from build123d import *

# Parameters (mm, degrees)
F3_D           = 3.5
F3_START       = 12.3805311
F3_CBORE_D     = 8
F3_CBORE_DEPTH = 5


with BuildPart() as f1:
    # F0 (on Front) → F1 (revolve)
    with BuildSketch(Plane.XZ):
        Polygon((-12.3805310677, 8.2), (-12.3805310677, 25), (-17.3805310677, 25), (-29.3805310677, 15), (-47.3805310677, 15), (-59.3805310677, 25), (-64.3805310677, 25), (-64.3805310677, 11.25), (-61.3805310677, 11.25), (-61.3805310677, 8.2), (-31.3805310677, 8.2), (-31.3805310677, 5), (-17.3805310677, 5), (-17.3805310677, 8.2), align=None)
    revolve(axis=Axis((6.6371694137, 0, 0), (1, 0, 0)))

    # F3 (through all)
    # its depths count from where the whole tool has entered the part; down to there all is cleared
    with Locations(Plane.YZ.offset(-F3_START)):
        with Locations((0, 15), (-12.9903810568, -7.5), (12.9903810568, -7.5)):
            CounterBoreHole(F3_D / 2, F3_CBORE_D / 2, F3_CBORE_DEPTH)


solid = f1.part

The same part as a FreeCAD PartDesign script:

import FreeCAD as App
import Part
import Sketcher
from FreeCAD import Vector


def add_polygon(sketch, points):
    """Adds a closed chain of lines whose ends are joined by coincident constraints."""
    first, n = sketch.GeometryCount, len(points)
    for a, b in zip(points, points[1:] + points[:1]):
        sketch.addGeometry(Part.LineSegment(App.Vector(*a, 0), App.Vector(*b, 0)), False)
    for i in range(n):
        sketch.addConstraint(Sketcher.Constraint("Coincident", first + i, 2, first + (i + 1) % n, 1))

doc = App.newDocument("Part")
params = doc.addObject("Spreadsheet::Sheet", "Params")
for row, (alias, value) in enumerate([
    ("sketch1_width", "5 mm"),
    ("sketch1_width2", "18 mm"),
    ("sketch1_width3", "3 mm"),
    ("sketch1_width4", "30 mm"),
    ("sketch1_width5", "14 mm"),
    ("revolution_angle", "360 deg"),
    ("sketch2_diameter", "3.5 mm"),
    ("hole_diameter", "3.5 mm"),
    ("hole_cbore_diameter", "8 mm"),
    ("hole_cbore_depth", "5 mm"),
], start=1):
    params.set(f"A{row}", alias)
    params.set(f"B{row}", "=" + value)
    params.setAlias(f"B{row}", alias)

body = doc.addObject("PartDesign::Body", "Body")

# Sketch on XZ plane
sketch1 = body.newObject("Sketcher::SketchObject", "Sketch")
sketch1.AttachmentSupport = (doc.getObject("XZ_Plane"), [""])
sketch1.MapMode = "FlatFace"
add_polygon(sketch1, [(-12.4, 8.2), (-12.4, 25), (-17.4, 25), (-29.4, 15), (-47.4, 15), (-59.4, 25), (-64.4, 25), (-64.4, 11.2), (-61.4, 11.2), (-61.4, 8.2), (-31.4, 8.2), (-31.4, 5), (-17.4, 5), (-17.4, 8.2)])  # lines 0-13
sketch1.addConstraint([
    Sketcher.Constraint("Vertical", 0),
    Sketcher.Constraint("Horizontal", 1),
    Sketcher.Constraint("Horizontal", 3),
    Sketcher.Constraint("Horizontal", 5),
    Sketcher.Constraint("Vertical", 6),
    Sketcher.Constraint("Horizontal", 7),
    Sketcher.Constraint("Vertical", 8),
    Sketcher.Constraint("Horizontal", 9),
    Sketcher.Constraint("Vertical", 10),
    Sketcher.Constraint("Horizontal", 11),
    Sketcher.Constraint("Vertical", 12),
    Sketcher.Constraint("Horizontal", 13),
    Sketcher.Constraint("Horizontal", 1, 2, 4, 2),
    Sketcher.Constraint("Horizontal", 9, 2, 12, 2),
    Sketcher.Constraint("Vertical", 1, 2, 11, 2),
    Sketcher.Constraint("Equal", 1, 5),
    Sketcher.Constraint("Equal", 2, 4),
    Sketcher.Constraint("DistanceX", 1, 2, 1, 1, 5.0),
    Sketcher.Constraint("DistanceX", 3, 2, 3, 1, 18.0),
    Sketcher.Constraint("DistanceX", 7, 1, 7, 2, 3.0),
    Sketcher.Constraint("DistanceX", 9, 1, 9, 2, 30.0),
    Sketcher.Constraint("DistanceX", 11, 1, 11, 2, 14.0),
    Sketcher.Constraint("DistanceY", 0, 1, 0, 2, 16.8),
    Sketcher.Constraint("DistanceY", 10, 2, 10, 1, 3.2),
    Sketcher.Constraint("DistanceY", -1, 1, 0, 2, 25.0),
    Sketcher.Constraint("DistanceY", -1, 1, 2, 2, 15.0),
    Sketcher.Constraint("DistanceY", 6, 2, 6, 1, 13.75),
    Sketcher.Constraint("DistanceX", 0, 2, -1, 1, 12.380531),
])
sketch1.setExpression("Constraints[31]", "Params.sketch1_width")
sketch1.setExpression("Constraints[32]", "Params.sketch1_width2")
sketch1.setExpression("Constraints[33]", "Params.sketch1_width3")
sketch1.setExpression("Constraints[34]", "Params.sketch1_width4")
sketch1.setExpression("Constraints[35]", "Params.sketch1_width5")
revolution = body.newObject("PartDesign::Revolution", "Revolution")
revolution.Profile = sketch1
revolution.ReferenceAxis = (sketch1, ["H_Axis"])
revolution.setExpression("Angle", "Params.revolution_angle")

# Sketch on YZ plane
sketch2 = body.newObject("Sketcher::SketchObject", "Sketch001")
sketch2.AttachmentSupport = (doc.getObject("YZ_Plane"), [""])
sketch2.MapMode = "FlatFace"
sketch2.AttachmentOffset = App.Placement(Vector(0, 0, -12.380531), App.Rotation())
sketch2.addGeometry([
    Part.Circle(Vector(0, 15, 0), Vector(0, 0, 1), 1.8),
    Part.Circle(Vector(-13, -7.5, 0), Vector(0, 0, 1), 1.8),
    Part.Circle(Vector(13, -7.5, 0), Vector(0, 0, 1), 1.8),
], False)
sketch2.addConstraint([
    Sketcher.Constraint("Equal", 0, 1),
    Sketcher.Constraint("Equal", 1, 2),
    Sketcher.Constraint("Symmetric", 1, 3, 2, 3, -2),
    Sketcher.Constraint("PointOnObject", 0, 3, -2),
    Sketcher.Constraint("Diameter", 0, 3.5),
    Sketcher.Constraint("DistanceY", -1, 1, 0, 3, 15.0),
    Sketcher.Constraint("DistanceY", 1, 3, -1, 1, 7.5),
    Sketcher.Constraint("DistanceX", 1, 3, -1, 1, 12.990381),
])
sketch2.setExpression("Constraints[4]", "Params.sketch2_diameter")
doc.recompute()
hole = body.newObject("PartDesign::Hole", "Hole")
hole.Profile = sketch2
hole.ThreadType = "None"
hole.setExpression("Diameter", "Params.hole_diameter")
hole.DepthType = "ThroughAll"
hole.HoleCutType = "Counterbore"
hole.setExpression("HoleCutDiameter", "Params.hole_cbore_diameter")
hole.setExpression("HoleCutDepth", "Params.hole_cbore_depth")

doc.recompute()
